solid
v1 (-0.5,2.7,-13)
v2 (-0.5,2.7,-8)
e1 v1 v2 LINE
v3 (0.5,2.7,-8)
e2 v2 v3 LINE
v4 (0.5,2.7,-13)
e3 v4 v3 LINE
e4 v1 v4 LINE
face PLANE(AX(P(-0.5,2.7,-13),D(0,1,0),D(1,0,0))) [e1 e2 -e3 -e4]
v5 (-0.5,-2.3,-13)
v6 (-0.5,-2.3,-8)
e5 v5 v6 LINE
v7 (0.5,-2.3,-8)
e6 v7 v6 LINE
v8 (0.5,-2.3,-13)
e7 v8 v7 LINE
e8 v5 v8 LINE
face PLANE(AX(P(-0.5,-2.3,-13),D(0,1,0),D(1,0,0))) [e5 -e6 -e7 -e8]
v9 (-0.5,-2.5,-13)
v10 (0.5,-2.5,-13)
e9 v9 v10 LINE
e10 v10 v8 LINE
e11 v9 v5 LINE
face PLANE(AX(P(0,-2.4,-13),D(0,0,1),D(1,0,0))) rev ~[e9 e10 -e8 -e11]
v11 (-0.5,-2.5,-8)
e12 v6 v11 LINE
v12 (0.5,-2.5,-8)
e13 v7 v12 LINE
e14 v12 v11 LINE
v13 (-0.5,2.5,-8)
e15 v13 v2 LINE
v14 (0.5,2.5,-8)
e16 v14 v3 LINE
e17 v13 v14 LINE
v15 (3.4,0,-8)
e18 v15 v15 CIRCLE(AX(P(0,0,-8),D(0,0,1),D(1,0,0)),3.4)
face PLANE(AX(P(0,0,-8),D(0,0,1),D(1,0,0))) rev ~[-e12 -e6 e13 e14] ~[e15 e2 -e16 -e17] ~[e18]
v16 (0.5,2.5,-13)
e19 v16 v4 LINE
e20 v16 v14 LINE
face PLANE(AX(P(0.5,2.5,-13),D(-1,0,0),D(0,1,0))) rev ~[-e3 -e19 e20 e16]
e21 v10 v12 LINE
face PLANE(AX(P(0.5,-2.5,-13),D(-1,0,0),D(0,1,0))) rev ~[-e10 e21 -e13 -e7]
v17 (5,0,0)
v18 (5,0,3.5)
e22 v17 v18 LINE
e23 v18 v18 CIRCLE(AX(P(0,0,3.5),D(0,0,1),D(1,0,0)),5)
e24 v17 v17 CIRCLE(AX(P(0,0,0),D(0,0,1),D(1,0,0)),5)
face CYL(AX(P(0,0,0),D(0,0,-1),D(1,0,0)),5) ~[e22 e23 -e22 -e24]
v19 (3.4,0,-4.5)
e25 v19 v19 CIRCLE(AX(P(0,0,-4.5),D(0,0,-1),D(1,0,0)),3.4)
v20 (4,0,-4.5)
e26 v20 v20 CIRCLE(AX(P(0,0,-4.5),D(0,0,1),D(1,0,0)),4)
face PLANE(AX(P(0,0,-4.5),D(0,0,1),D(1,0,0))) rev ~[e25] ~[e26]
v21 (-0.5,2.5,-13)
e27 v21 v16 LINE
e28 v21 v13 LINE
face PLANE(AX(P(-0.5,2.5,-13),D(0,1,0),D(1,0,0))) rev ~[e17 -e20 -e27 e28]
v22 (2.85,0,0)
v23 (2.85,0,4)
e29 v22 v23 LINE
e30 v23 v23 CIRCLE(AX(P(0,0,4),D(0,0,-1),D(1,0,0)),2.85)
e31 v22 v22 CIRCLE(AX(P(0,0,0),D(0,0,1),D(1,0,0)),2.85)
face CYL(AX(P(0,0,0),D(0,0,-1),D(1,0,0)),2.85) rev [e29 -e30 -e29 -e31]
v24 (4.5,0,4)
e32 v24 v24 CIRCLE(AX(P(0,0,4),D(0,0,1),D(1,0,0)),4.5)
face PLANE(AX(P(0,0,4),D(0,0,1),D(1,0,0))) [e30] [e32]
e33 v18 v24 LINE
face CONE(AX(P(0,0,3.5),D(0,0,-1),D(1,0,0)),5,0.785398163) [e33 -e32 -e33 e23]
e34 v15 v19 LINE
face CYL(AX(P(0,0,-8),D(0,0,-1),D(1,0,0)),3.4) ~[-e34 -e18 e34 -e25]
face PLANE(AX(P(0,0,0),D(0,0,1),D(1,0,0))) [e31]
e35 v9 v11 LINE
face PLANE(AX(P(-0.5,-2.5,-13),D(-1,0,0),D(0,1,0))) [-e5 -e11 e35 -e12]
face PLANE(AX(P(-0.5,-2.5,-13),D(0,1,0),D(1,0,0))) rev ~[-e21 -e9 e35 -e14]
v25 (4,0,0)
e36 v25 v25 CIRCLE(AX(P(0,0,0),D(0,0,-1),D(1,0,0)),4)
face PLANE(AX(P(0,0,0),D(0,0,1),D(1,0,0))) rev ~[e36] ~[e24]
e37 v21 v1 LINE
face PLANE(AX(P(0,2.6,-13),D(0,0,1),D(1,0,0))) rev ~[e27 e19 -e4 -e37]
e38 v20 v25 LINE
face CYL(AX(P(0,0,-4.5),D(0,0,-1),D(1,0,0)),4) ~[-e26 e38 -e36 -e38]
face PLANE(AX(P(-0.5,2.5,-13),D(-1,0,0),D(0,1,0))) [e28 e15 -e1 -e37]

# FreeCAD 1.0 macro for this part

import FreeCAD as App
import Part
import Sketcher
from FreeCAD import Vector
Q = App.Units.Quantity


def edges_at(feature, points):
    """Names of the edges that pass closest to the given points."""
    edges = feature.Shape.Edges
    near = lambda p: min(range(len(edges)), key=lambda i: edges[i].distToShape(Part.Vertex(*p))[0])
    return sorted({f"Edge{near(p) + 1}" for p in points})

doc = App.newDocument("Part")
params = doc.addObject("Spreadsheet::Sheet", "Params")
for row, (alias, value) in enumerate([
    ("sketch1_diameter", "5.7 mm"),
    ("pad1_length", "10 mm"),
    ("sketch2_width", "1 mm"),
    ("sketch2_height", "0.2 mm"),
    ("pad2_length", "5.1 mm"),
    ("sketch3_diameter", "6.8 mm"),
    ("pad3_length", "8.5 mm"),
    ("sketch4_width", "1 mm"),
    ("sketch4_height", "0.2 mm"),
    ("pad4_length", "5.1 mm"),
    ("sketch5_diameter", "10 mm"),
    ("pad5_length", "4 mm"),
    ("chamfer_size", "0.5 mm"),
    ("sketch6_diameter", "8 mm"),
    ("pad6_length", "4.6 mm"),
], start=1):
    params.set(f"A{row}", alias)
    params.set(f"B{row}", "=" + value)
    params.setAlias(f"B{row}", alias)

body = doc.addObject("PartDesign::Body", "Body")

sketch1 = body.newObject("Sketcher::SketchObject", "Sketch")
sketch1.AttachmentSupport = (doc.getObject("XY_Plane"), [""])
sketch1.MapMode = "FlatFace"
sketch1.addGeometry(Part.Circle(Vector(0, 0, 0), Vector(0, 0, 1), 2.9), False)
sketch1.addConstraint([
    Sketcher.Constraint("Coincident", 0, 3, -1, 1),
    Sketcher.Constraint("Diameter", 0, Q("5.7 mm")),
])
sketch1.setExpression("Constraints[1]", "Params.sketch1_diameter")
pad1 = body.newObject("PartDesign::Pad", "Pad")
pad1.Profile = sketch1
pad1.setExpression("Length", "Params.pad1_length")
body2 = doc.addObject("PartDesign::Body", "Body001")

sketch2 = body2.newObject("Sketcher::SketchObject", "Sketch001")
sketch2.AttachmentSupport = (doc.getObject("XY_Plane001"), [""])
sketch2.MapMode = "FlatFace"
sketch2.AttachmentOffset = App.Placement(Vector(0, 0, -13), App.Rotation())
sketch2.addGeometry([
    Part.LineSegment(Vector(-0.5, 2.7, 0), Vector(-0.5, 2.5, 0)),
    Part.LineSegment(Vector(-0.5, 2.5, 0), Vector(0.5, 2.5, 0)),
    Part.LineSegment(Vector(0.5, 2.5, 0), Vector(0.5, 2.7, 0)),
    Part.LineSegment(Vector(0.5, 2.7, 0), Vector(-0.5, 2.7, 0)),
], False)
sketch2.addConstraint([
    Sketcher.Constraint("Coincident", 0, 2, 1, 1),
    Sketcher.Constraint("Coincident", 1, 2, 2, 1),
    Sketcher.Constraint("Coincident", 2, 2, 3, 1),
    Sketcher.Constraint("Coincident", 3, 2, 0, 1),
    Sketcher.Constraint("Vertical", 0),
    Sketcher.Constraint("Horizontal", 1),
    Sketcher.Constraint("Vertical", 2),
    Sketcher.Constraint("Horizontal", 3),
    Sketcher.Constraint("DistanceX", 1, 1, 1, 2, Q("1 mm")),
    Sketcher.Constraint("DistanceY", 0, 2, 0, 1, Q("0.2 mm")),
    Sketcher.Constraint("DistanceX", 0, 2, -1, 1, Q("0.5 mm")),
    Sketcher.Constraint("DistanceY", -1, 1, 0, 2, Q("2.5 mm")),
])
sketch2.setExpression("Constraints[8]", "Params.sketch2_width")
sketch2.setExpression("Constraints[9]", "Params.sketch2_height")
pad2 = body2.newObject("PartDesign::Pad", "Pad001")
pad2.Profile = sketch2
pad2.setExpression("Length", "Params.pad2_length")
body3 = doc.addObject("PartDesign::Body", "Body002")

sketch3 = body3.newObject("Sketcher::SketchObject", "Sketch002")
sketch3.AttachmentSupport = (doc.getObject("XY_Plane002"), [""])
sketch3.MapMode = "FlatFace"
sketch3.AttachmentOffset = App.Placement(Vector(0, 0, -8), App.Rotation())
sketch3.addGeometry(Part.Circle(Vector(0, 0, 0), Vector(0, 0, 1), 3.4), False)
sketch3.addConstraint([
    Sketcher.Constraint("Coincident", 0, 3, -1, 1),
    Sketcher.Constraint("Diameter", 0, Q("6.8 mm")),
])
sketch3.setExpression("Constraints[1]", "Params.sketch3_diameter")
pad3 = body3.newObject("PartDesign::Pad", "Pad002")
pad3.Profile = sketch3
pad3.setExpression("Length", "Params.pad3_length")
body4 = doc.addObject("PartDesign::Body", "Body003")

sketch4 = body4.newObject("Sketcher::SketchObject", "Sketch003")
sketch4.AttachmentSupport = (doc.getObject("XY_Plane003"), [""])
sketch4.MapMode = "FlatFace"
sketch4.AttachmentOffset = App.Placement(Vector(0, 0, -13), App.Rotation())
sketch4.addGeometry([
    Part.LineSegment(Vector(-0.5, -2.3, 0), Vector(-0.5, -2.5, 0)),
    Part.LineSegment(Vector(-0.5, -2.5, 0), Vector(0.5, -2.5, 0)),
    Part.LineSegment(Vector(0.5, -2.5, 0), Vector(0.5, -2.3, 0)),
    Part.LineSegment(Vector(0.5, -2.3, 0), Vector(-0.5, -2.3, 0)),
], False)
sketch4.addConstraint([
    Sketcher.Constraint("Coincident", 0, 2, 1, 1),
    Sketcher.Constraint("Coincident", 1, 2, 2, 1),
    Sketcher.Constraint("Coincident", 2, 2, 3, 1),
    Sketcher.Constraint("Coincident", 3, 2, 0, 1),
    Sketcher.Constraint("Vertical", 0),
    Sketcher.Constraint("Horizontal", 1),
    Sketcher.Constraint("Vertical", 2),
    Sketcher.Constraint("Horizontal", 3),
    Sketcher.Constraint("DistanceX", 1, 1, 1, 2, Q("1 mm")),
    Sketcher.Constraint("DistanceY", 0, 2, 0, 1, Q("0.2 mm")),
    Sketcher.Constraint("DistanceX", 0, 2, -1, 1, Q("0.5 mm")),
    Sketcher.Constraint("DistanceY", 0, 2, -1, 1, Q("2.5 mm")),
])
sketch4.setExpression("Constraints[8]", "Params.sketch4_width")
sketch4.setExpression("Constraints[9]", "Params.sketch4_height")
pad4 = body4.newObject("PartDesign::Pad", "Pad003")
pad4.Profile = sketch4
pad4.setExpression("Length", "Params.pad4_length")
body5 = doc.addObject("PartDesign::Body", "Body004")

sketch5 = body5.newObject("Sketcher::SketchObject", "Sketch004")
sketch5.AttachmentSupport = (doc.getObject("XY_Plane004"), [""])
sketch5.MapMode = "FlatFace"
sketch5.addGeometry(Part.Circle(Vector(0, 0, 0), Vector(0, 0, 1), 5), False)
sketch5.addConstraint([
    Sketcher.Constraint("Coincident", 0, 3, -1, 1),
    Sketcher.Constraint("Diameter", 0, Q("10 mm")),
])
sketch5.setExpression("Constraints[1]", "Params.sketch5_diameter")
pad5 = body5.newObject("PartDesign::Pad", "Pad004")
pad5.Profile = sketch5
pad5.setExpression("Length", "Params.pad5_length")
doc.recompute()

chamfer = body5.newObject("PartDesign::Chamfer", "Chamfer")
chamfer.Base = (pad5, edges_at(pad5, [(-5, 0, 4)]))
chamfer.setExpression("Size", "Params.chamfer_size")
body6 = doc.addObject("PartDesign::Body", "Body005")
body6.AllowCompound = True

sketch6 = body6.newObject("Sketcher::SketchObject", "Sketch005")
sketch6.AttachmentSupport = (doc.getObject("XY_Plane005"), [""])
sketch6.MapMode = "FlatFace"
sketch6.AttachmentOffset = App.Placement(Vector(0, 0, -4.5), App.Rotation())
sketch6.addGeometry(Part.Circle(Vector(0, 0, 0), Vector(0, 0, 1), 4), False)
sketch6.addConstraint([
    Sketcher.Constraint("Coincident", 0, 3, -1, 1),
    Sketcher.Constraint("Diameter", 0, Q("8 mm")),
])
sketch6.setExpression("Constraints[1]", "Params.sketch6_diameter")
pad6 = body6.newObject("PartDesign::Pad", "Pad005")
pad6.Profile = sketch6
pad6.setExpression("Length", "Params.pad6_length")
doc.recompute()

boolean = body6.newObject("PartDesign::Boolean", "Boolean")
boolean.Type = "Fuse"
boolean.addObjects([body2])
doc.recompute()

boolean2 = body6.newObject("PartDesign::Boolean", "Boolean001")
boolean2.Type = "Fuse"
boolean2.addObjects([body3])
doc.recompute()

boolean3 = body6.newObject("PartDesign::Boolean", "Boolean002")
boolean3.Type = "Fuse"
boolean3.addObjects([body4])
doc.recompute()

boolean4 = body6.newObject("PartDesign::Boolean", "Boolean003")
boolean4.Type = "Fuse"
boolean4.addObjects([body5])
doc.recompute()

boolean5 = body6.newObject("PartDesign::Boolean", "Boolean004")
boolean5.Type = "Cut"
boolean5.addObjects([body])

doc.recompute()
